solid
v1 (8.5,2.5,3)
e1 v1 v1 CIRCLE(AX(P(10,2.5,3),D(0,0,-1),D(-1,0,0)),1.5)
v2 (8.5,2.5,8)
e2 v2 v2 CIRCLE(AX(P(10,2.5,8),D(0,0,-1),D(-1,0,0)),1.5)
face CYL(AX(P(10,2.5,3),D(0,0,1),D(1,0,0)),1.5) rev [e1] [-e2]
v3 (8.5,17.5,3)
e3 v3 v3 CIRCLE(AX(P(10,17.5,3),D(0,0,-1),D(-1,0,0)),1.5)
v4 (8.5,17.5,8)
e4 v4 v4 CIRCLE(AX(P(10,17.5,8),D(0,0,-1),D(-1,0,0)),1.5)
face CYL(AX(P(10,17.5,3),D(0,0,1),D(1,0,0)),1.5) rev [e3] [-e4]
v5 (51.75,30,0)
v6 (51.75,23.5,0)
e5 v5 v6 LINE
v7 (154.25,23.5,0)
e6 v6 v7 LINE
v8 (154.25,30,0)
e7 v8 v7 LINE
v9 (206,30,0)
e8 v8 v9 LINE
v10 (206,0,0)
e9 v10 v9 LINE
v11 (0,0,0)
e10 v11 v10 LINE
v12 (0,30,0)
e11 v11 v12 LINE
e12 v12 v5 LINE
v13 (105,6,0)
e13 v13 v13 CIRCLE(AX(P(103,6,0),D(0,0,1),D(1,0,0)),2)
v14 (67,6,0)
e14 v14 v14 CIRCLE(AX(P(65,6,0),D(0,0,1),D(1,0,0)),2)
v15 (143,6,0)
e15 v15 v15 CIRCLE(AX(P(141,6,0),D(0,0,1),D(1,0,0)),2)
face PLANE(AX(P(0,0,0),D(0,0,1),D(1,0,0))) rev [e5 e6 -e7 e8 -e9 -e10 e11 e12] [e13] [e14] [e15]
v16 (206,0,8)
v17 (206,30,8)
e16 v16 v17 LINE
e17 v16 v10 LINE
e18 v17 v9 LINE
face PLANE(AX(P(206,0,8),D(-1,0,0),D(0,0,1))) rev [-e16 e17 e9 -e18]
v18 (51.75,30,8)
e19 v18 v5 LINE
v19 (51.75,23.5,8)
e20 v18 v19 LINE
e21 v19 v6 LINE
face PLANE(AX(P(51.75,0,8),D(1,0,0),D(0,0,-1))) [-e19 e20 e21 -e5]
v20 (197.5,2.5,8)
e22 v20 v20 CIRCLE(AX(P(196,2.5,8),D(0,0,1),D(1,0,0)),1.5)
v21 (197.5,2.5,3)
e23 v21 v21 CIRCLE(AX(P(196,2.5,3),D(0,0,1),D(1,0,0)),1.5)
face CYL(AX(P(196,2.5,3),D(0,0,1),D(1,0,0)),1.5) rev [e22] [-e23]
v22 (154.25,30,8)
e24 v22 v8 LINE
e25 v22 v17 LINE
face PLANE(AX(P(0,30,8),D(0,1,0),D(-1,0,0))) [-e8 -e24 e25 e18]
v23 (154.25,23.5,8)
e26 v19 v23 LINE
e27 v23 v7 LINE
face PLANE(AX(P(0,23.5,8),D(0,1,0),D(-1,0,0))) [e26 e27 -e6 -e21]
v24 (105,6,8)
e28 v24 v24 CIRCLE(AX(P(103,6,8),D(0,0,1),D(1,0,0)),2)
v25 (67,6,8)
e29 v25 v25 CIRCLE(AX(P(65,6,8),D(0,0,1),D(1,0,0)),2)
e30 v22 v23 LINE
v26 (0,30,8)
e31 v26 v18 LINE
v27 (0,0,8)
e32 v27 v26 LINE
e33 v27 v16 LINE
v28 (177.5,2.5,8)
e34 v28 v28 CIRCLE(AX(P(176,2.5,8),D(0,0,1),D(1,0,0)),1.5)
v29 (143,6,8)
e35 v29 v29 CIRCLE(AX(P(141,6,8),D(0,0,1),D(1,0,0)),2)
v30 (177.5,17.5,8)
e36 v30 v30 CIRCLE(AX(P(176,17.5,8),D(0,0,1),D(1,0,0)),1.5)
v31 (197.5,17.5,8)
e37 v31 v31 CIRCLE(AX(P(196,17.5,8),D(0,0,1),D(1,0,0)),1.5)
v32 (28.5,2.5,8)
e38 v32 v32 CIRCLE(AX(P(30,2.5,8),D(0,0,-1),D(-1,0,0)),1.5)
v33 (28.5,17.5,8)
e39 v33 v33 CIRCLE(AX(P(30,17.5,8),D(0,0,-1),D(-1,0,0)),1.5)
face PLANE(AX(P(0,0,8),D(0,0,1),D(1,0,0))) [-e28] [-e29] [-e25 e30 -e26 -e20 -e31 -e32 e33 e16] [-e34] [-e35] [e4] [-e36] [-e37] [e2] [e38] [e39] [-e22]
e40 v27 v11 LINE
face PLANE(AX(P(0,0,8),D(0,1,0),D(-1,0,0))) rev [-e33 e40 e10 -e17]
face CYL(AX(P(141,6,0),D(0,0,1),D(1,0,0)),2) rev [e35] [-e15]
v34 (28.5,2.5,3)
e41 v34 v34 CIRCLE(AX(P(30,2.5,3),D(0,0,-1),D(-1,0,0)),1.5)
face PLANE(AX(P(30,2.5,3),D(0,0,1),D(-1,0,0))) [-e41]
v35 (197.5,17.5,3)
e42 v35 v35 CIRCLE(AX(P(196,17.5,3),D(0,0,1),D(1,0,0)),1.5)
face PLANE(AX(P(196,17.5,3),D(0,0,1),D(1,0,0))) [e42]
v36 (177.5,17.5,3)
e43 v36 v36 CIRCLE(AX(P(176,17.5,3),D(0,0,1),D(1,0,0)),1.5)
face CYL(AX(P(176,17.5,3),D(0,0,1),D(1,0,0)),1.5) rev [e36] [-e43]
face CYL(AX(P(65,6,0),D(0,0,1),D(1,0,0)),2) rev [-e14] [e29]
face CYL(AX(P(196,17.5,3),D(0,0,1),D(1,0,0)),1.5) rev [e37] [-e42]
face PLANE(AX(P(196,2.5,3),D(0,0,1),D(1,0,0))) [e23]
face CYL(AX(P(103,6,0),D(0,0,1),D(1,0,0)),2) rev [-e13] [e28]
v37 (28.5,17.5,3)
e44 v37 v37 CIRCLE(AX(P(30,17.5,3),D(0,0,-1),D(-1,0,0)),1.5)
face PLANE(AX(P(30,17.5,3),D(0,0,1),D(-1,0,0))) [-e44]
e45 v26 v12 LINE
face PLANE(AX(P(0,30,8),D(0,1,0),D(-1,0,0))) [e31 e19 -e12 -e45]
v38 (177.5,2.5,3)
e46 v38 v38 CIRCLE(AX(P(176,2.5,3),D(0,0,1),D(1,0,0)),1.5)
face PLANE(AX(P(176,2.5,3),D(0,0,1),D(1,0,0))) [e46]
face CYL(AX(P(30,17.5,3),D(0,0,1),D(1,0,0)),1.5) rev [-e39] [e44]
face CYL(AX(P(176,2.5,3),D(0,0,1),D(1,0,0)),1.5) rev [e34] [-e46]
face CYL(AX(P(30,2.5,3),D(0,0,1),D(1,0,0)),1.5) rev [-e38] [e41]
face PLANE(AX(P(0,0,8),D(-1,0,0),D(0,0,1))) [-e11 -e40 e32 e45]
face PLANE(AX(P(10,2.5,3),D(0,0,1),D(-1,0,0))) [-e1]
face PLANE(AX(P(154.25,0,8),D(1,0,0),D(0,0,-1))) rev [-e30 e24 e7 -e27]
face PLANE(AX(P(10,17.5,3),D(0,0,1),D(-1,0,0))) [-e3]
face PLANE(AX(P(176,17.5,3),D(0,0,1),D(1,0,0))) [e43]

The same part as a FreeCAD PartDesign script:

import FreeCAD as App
import Part
import Sketcher
from FreeCAD import Vector


def add_polygon(sketch, points):
    """Adds a closed chain of lines whose ends are joined by coincident constraints."""
    first, n = sketch.GeometryCount, len(points)
    for a, b in zip(points, points[1:] + points[:1]):
        sketch.addGeometry(Part.LineSegment(App.Vector(*a, 0), App.Vector(*b, 0)), False)
    for i in range(n):
        sketch.addConstraint(Sketcher.Constraint("Coincident", first + i, 2, first + (i + 1) % n, 1))

doc = App.newDocument("Part")
body = doc.addObject("PartDesign::Body", "Body")

# Sketch on XY plane
sketch1 = body.newObject("Sketcher::SketchObject", "Sketch")
sketch1.AttachmentSupport = (doc.getObject("XY_Plane"), [""])
sketch1.MapMode = "FlatFace"
add_polygon(sketch1, [(0, 30), (0, 0), (206, 0), (206, 30), (154, 30), (154, 24), (52, 24), (52, 30)])  # lines 0-7
sketch1.addConstraint([
    Sketcher.Constraint("Vertical", 0),
    Sketcher.Constraint("Horizontal", 1),
    Sketcher.Constraint("Vertical", 2),
    Sketcher.Constraint("Horizontal", 3),
    Sketcher.Constraint("Vertical", 4),
    Sketcher.Constraint("Horizontal", 5),
    Sketcher.Constraint("Vertical", 6),
    Sketcher.Constraint("Horizontal", 7),
    Sketcher.Constraint("Coincident", 0, 2, -1, 1),
    Sketcher.Constraint("Horizontal", 3, 2, 6, 2),
    Sketcher.Constraint("Equal", 3, 7),
    Sketcher.Constraint("DistanceX", 1, 1, 1, 2, 206.0),
    Sketcher.Constraint("DistanceY", 0, 2, 0, 1, 30.0),
    Sketcher.Constraint("DistanceX", 5, 2, 5, 1, 102.5),
    Sketcher.Constraint("DistanceY", 4, 2, 4, 1, 6.5),
])
pad1 = body.newObject("PartDesign::Pad", "Pad")
pad1.Profile = sketch1
pad1.Length = 8

# Sketch on XY plane
sketch2 = body.newObject("Sketcher::SketchObject", "Sketch001")
sketch2.AttachmentSupport = (doc.getObject("XY_Plane"), [""])
sketch2.MapMode = "FlatFace"
sketch2.AttachmentOffset = App.Placement(Vector(0, 0, 8), App.Rotation())
sketch2.addGeometry([
    Part.Circle(Vector(103, 6, 0), Vector(0, 0, 1), 2),
    Part.Circle(Vector(141, 6, 0), Vector(0, 0, 1), 2),
    Part.Circle(Vector(65, 6, 0), Vector(0, 0, 1), 2),
], False)
sketch2.addConstraint([
    Sketcher.Constraint("Equal", 0, 1),
    Sketcher.Constraint("Equal", 1, 2),
    Sketcher.Constraint("Horizontal", 0, 3, 1, 3),
    Sketcher.Constraint("Horizontal", 1, 3, 2, 3),
    Sketcher.Constraint("Diameter", 0, 4.0),
    Sketcher.Constraint("DistanceX", -1, 1, 0, 3, 103.0),
    Sketcher.Constraint("DistanceY", -1, 1, 0, 3, 6.0),
    Sketcher.Constraint("DistanceX", -1, 1, 1, 3, 141.0),
    Sketcher.Constraint("DistanceX", -1, 1, 2, 3, 65.0),
])
pocket1 = body.newObject("PartDesign::Pocket", "Pocket")
pocket1.Profile = sketch2
pocket1.Type = "ThroughAll"

# Sketch on XY plane
sketch3 = body.newObject("Sketcher::SketchObject", "Sketch002")
sketch3.AttachmentSupport = (doc.getObject("XY_Plane"), [""])
sketch3.MapMode = "FlatFace"
sketch3.AttachmentOffset = App.Placement(Vector(0, 0, 8), App.Rotation())
sketch3.addGeometry([
    Part.Circle(Vector(176, 17.5, 0), Vector(0, 0, 1), 1.5),
    Part.Circle(Vector(196, 17.5, 0), Vector(0, 0, 1), 1.5),
    Part.Circle(Vector(196, 2.5, 0), Vector(0, 0, 1), 1.5),
    Part.Circle(Vector(176, 2.5, 0), Vector(0, 0, 1), 1.5),
], False)
sketch3.addConstraint([
    Sketcher.Constraint("Equal", 0, 1),
    Sketcher.Constraint("Equal", 1, 2),
    Sketcher.Constraint("Equal", 2, 3),
    Sketcher.Constraint("Horizontal", 0, 3, 1, 3),
    Sketcher.Constraint("Horizontal", 2, 3, 3, 3),
    Sketcher.Constraint("Vertical", 1, 3, 2, 3),
    Sketcher.Constraint("Vertical", 0, 3, 3, 3),
    Sketcher.Constraint("Diameter", 0, 3.0),
    Sketcher.Constraint("DistanceX", -1, 1, 0, 3, 176.0),
    Sketcher.Constraint("DistanceX", -1, 1, 1, 3, 196.0),
    Sketcher.Constraint("DistanceY", 2, 3, 1, 3, 15.0),
    Sketcher.Constraint("DistanceY", -1, 1, 0, 3, 17.5),
])
pocket2 = body.newObject("PartDesign::Pocket", "Pocket001")
pocket2.Profile = sketch3
pocket2.Length = 5
doc.recompute()

datumplane = body.newObject("PartDesign::Plane", "DatumPlane")
datumplane.AttachmentSupport = (doc.getObject("YZ_Plane"), [""])
datumplane.MapMode = "FlatFace"
datumplane.AttachmentOffset = App.Placement(Vector(0, 0, 103), App.Rotation())
mirrored = body.newObject("PartDesign::Mirrored", "Mirrored")
mirrored.Originals = [pocket2]
mirrored.MirrorPlane = (datumplane, [""])
body.Tip = mirrored

doc.recompute()
